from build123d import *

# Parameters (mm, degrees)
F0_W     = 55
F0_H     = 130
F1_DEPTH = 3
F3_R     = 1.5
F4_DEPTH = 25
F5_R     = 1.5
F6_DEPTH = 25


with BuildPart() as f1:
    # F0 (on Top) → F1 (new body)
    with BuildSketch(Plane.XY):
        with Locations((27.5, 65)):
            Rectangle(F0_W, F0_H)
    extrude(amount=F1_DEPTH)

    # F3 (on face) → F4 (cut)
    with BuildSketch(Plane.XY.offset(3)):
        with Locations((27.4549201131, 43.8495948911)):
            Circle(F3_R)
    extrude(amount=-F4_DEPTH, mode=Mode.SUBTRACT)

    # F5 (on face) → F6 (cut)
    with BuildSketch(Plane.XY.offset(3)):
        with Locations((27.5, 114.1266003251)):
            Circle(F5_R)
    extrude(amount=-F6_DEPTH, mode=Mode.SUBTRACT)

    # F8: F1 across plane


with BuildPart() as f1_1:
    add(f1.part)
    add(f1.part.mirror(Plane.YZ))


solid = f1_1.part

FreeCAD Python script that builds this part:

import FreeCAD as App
import Part
import Sketcher
from FreeCAD import Vector

doc = App.newDocument("Part")
body = doc.addObject("PartDesign::Body", "Body")

# Sketch on XY plane
sketch1 = body.newObject("Sketcher::SketchObject", "Sketch")
sketch1.AttachmentSupport = (doc.getObject("XY_Plane"), [""])
sketch1.MapMode = "FlatFace"
sketch1.addGeometry(Part.LineSegment(Vector(0, 130, 0), Vector(0, 0, 0)), False)
sketch1.addGeometry(Part.LineSegment(Vector(0, 0, 0), Vector(55, 0, 0)), False)
sketch1.addGeometry(Part.LineSegment(Vector(55, 0, 0), Vector(55, 130, 0)), False)
sketch1.addGeometry(Part.LineSegment(Vector(55, 130, 0), Vector(0, 130, 0)), False)
sketch1.addConstraint(Sketcher.Constraint("Coincident", 0, 2, 1, 1))
sketch1.addConstraint(Sketcher.Constraint("Coincident", 1, 2, 2, 1))
sketch1.addConstraint(Sketcher.Constraint("Coincident", 2, 2, 3, 1))
sketch1.addConstraint(Sketcher.Constraint("Coincident", 3, 2, 0, 1))
sketch1.addConstraint(Sketcher.Constraint("Vertical", 0))
sketch1.addConstraint(Sketcher.Constraint("Horizontal", 1))
sketch1.addConstraint(Sketcher.Constraint("Vertical", 2))
sketch1.addConstraint(Sketcher.Constraint("Horizontal", 3))
sketch1.addConstraint(Sketcher.Constraint("Coincident", 0, 2, -1, 1))
sketch1.addConstraint(Sketcher.Constraint("DistanceX", 1, 1, 1, 2, 55.0))
sketch1.addConstraint(Sketcher.Constraint("DistanceY", 0, 2, 0, 1, 130.0))
pad1 = body.newObject("PartDesign::Pad", "Pad")
pad1.Profile = sketch1
pad1.Length = 3

# Sketch on XY plane
sketch2 = body.newObject("Sketcher::SketchObject", "Sketch001")
sketch2.AttachmentSupport = (doc.getObject("XY_Plane"), [""])
sketch2.MapMode = "FlatFace"
sketch2.AttachmentOffset = App.Placement(Vector(0, 0, 3), App.Rotation())
sketch2.addGeometry(Part.Circle(Vector(27.45492, 43.849595, 0), Vector(0, 0, 1), 1.5), False)
sketch2.addConstraint(Sketcher.Constraint("Diameter", 0, 3.0))
sketch2.addConstraint(Sketcher.Constraint("DistanceX", -1, 1, 0, 3, 27.45492))
sketch2.addConstraint(Sketcher.Constraint("DistanceY", -1, 1, 0, 3, 43.849595))
pocket1 = body.newObject("PartDesign::Pocket", "Pocket")
pocket1.Profile = sketch2
pocket1.Length = 25

# Sketch on XY plane
sketch3 = body.newObject("Sketcher::SketchObject", "Sketch002")
sketch3.AttachmentSupport = (doc.getObject("XY_Plane"), [""])
sketch3.MapMode = "FlatFace"
sketch3.AttachmentOffset = App.Placement(Vector(0, 0, 3), App.Rotation())
sketch3.addGeometry(Part.Circle(Vector(27.5, 114.1266, 0), Vector(0, 0, 1), 1.5), False)
sketch3.addConstraint(Sketcher.Constraint("Diameter", 0, 3.0))
sketch3.addConstraint(Sketcher.Constraint("DistanceX", -1, 1, 0, 3, 27.5))
sketch3.addConstraint(Sketcher.Constraint("DistanceY", -1, 1, 0, 3, 114.1266))
pocket2 = body.newObject("PartDesign::Pocket", "Pocket001")
pocket2.Profile = sketch3
pocket2.Length = 25
body2 = doc.addObject("PartDesign::Body", "Body001")
doc.recompute()

body2.BaseFeature = body
doc.recompute()

mirroring = doc.addObject("Part::Mirroring", "Mirroring")
mirroring.Source = body
mirroring.Base = Vector(0, 0, 0)
mirroring.Normal = Vector(1, 0, 0)
body3 = doc.addObject("PartDesign::Body", "Body002")
body3.BaseFeature = mirroring
boolean = body2.newObject("PartDesign::Boolean", "Boolean")
boolean.Type = "Fuse"
boolean.addObjects([body3])
doc.recompute()
mirroring.Visibility = False

doc.recompute()
